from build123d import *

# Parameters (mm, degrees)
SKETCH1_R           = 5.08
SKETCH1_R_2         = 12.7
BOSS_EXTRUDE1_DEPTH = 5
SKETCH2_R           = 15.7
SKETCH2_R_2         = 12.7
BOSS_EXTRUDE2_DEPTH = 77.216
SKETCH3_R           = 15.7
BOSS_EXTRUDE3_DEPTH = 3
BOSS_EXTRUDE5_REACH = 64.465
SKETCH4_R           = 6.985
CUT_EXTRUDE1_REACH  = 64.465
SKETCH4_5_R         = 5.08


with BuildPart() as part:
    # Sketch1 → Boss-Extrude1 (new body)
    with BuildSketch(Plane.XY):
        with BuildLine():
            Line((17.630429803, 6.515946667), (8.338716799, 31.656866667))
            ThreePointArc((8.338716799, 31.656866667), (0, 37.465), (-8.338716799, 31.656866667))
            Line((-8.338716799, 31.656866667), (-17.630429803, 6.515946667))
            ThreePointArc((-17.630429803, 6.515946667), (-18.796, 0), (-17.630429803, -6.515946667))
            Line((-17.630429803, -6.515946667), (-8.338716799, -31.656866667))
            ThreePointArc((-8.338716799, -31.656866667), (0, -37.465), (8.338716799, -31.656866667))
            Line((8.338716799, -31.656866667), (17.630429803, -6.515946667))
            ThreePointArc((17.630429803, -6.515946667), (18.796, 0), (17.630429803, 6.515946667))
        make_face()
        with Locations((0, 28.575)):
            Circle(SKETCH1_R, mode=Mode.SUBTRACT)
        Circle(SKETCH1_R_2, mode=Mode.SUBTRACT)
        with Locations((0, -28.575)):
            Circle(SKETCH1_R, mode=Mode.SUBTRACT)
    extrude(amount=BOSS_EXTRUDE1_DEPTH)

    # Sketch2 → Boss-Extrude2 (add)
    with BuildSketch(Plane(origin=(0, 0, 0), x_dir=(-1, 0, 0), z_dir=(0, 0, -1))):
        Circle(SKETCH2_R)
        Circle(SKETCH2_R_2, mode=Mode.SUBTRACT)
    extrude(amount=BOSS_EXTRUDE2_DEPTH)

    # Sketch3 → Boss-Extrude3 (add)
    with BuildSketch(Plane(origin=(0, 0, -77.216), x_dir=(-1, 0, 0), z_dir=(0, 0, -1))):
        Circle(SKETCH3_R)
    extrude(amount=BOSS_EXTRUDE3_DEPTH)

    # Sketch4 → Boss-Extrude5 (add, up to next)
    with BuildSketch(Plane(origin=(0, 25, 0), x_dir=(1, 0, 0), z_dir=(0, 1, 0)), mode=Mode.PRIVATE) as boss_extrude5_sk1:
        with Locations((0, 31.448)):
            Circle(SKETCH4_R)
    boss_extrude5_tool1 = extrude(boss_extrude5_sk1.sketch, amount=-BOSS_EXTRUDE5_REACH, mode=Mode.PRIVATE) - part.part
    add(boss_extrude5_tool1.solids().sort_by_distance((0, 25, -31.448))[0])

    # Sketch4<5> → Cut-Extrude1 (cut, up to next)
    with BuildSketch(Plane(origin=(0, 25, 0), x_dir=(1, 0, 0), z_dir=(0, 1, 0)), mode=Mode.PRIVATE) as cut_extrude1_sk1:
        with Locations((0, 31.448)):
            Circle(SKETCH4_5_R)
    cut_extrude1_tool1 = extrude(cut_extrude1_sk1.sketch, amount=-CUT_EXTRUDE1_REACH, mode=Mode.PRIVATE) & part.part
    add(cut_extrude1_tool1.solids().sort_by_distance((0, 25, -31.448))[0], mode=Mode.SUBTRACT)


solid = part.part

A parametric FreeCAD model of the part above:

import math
import FreeCAD as App
import Part
import Sketcher
Q = App.Units.Quantity

doc = App.newDocument("Part")
params = doc.addObject("Spreadsheet::Sheet", "Params")
for row, (alias, value) in enumerate([
    ("sketch1_diameter", "1 in"),
    ("sketch1_diameter2", "0.4 in"),
    ("sketch1_radius", "0.35 in"),
    ("sketch1_radius2", "0.74 in"),
    ("pad1_length", "5 mm"),
    ("sketch2_diameter", "1 in"),
    ("pad2_length", "3.04 in"),
    ("pad3_length", "3 mm"),
    ("sketch4_diameter", "0.55 in"),
    ("sketch5_diameter", "0.4 in"),
], start=1):
    params.set(f"A{row}", alias)
    params.set(f"B{row}", "=" + value)
    params.setAlias(f"B{row}", alias)

body = doc.addObject("PartDesign::Body", "Body")

# Sketch on XY plane
sketch1 = body.newObject("Sketcher::SketchObject", "Sketch")
sketch1.AttachmentSupport = (doc.getObject("XY_Plane"), [""])
sketch1.MapMode = "FlatFace"
sketch1.addGeometry(Part.LineSegment(App.Vector(18, 7, 0), App.Vector(8, 32, 0)), False)
sketch1.addGeometry(Part.ArcOfCircle(Part.Circle(App.Vector(0, 29, 0), App.Vector(0, 0, 1), 9), math.radians(20), math.radians(160)), False)
sketch1.addGeometry(Part.LineSegment(App.Vector(-8, 32, 0), App.Vector(-18, 7, 0)), False)
sketch1.addGeometry(Part.ArcOfCircle(Part.Circle(App.Vector(0, 0, 0), App.Vector(0, 0, 1), 19), math.radians(160), math.radians(200)), False)
sketch1.addGeometry(Part.LineSegment(App.Vector(-18, -7, 0), App.Vector(-8, -32, 0)), False)
sketch1.addGeometry(Part.ArcOfCircle(Part.Circle(App.Vector(0, -29, 0), App.Vector(0, 0, 1), 9), math.radians(-160), math.radians(-20)), False)
sketch1.addGeometry(Part.LineSegment(App.Vector(8, -32, 0), App.Vector(18, -7, 0)), False)
sketch1.addGeometry(Part.ArcOfCircle(Part.Circle(App.Vector(0, 0, 0), App.Vector(0, 0, 1), 19), math.radians(-20), math.radians(20)), False)
sketch1.addGeometry(Part.Circle(App.Vector(0, -29, 0), App.Vector(0, 0, 1), 5), False)
sketch1.addGeometry(Part.Circle(App.Vector(0, 0, 0), App.Vector(0, 0, 1), 13), False)
sketch1.addGeometry(Part.Circle(App.Vector(0, 29, 0), App.Vector(0, 0, 1), 5), False)
sketch1.addConstraint(Sketcher.Constraint("Tangent", 0, 2, 1, 1))
sketch1.addConstraint(Sketcher.Constraint("Tangent", 1, 2, 2, 1))
sketch1.addConstraint(Sketcher.Constraint("Tangent", 2, 2, 3, 1))
sketch1.addConstraint(Sketcher.Constraint("Tangent", 3, 2, 4, 1))
sketch1.addConstraint(Sketcher.Constraint("Tangent", 4, 2, 5, 1))
sketch1.addConstraint(Sketcher.Constraint("Tangent", 5, 2, 6, 1))
sketch1.addConstraint(Sketcher.Constraint("Tangent", 6, 2, 7, 1))
sketch1.addConstraint(Sketcher.Constraint("Tangent", 7, 2, 0, 1))
sketch1.addConstraint(Sketcher.Constraint("Coincident", 3, 3, -1, 1))
sketch1.addConstraint(Sketcher.Constraint("Coincident", 7, 3, -1, 1))
sketch1.addConstraint(Sketcher.Constraint("Coincident", 9, 3, -1, 1))
sketch1.addConstraint(Sketcher.Constraint("Coincident", 8, 3, 5, 3))
sketch1.addConstraint(Sketcher.Constraint("Coincident", 10, 3, 1, 3))
sketch1.addConstraint(Sketcher.Constraint("Equal", 1, 5))
sketch1.addConstraint(Sketcher.Constraint("Equal", 3, 7))
sketch1.addConstraint(Sketcher.Constraint("Equal", 8, 10))
sketch1.addConstraint(Sketcher.Constraint("Symmetric", 1, 3, 5, 3, -1, 1))
sketch1.addConstraint(Sketcher.Constraint("PointOnObject", 1, 3, -2))
sketch1.addConstraint(Sketcher.Constraint("Diameter", 9, Q("1 in")))
sketch1.addConstraint(Sketcher.Constraint("Diameter", 8, Q("0.4 in")))
sketch1.addConstraint(Sketcher.Constraint("Radius", 1, Q("0.35 in")))
sketch1.addConstraint(Sketcher.Constraint("Radius", 3, Q("0.74 in")))
sketch1.addConstraint(Sketcher.Constraint("DistanceY", 5, 3, 1, 3, Q("2.25 in")))
sketch1.setExpression("Constraints[18]", "Params.sketch1_diameter")
sketch1.setExpression("Constraints[19]", "Params.sketch1_diameter2")
sketch1.setExpression("Constraints[20]", "Params.sketch1_radius")
sketch1.setExpression("Constraints[21]", "Params.sketch1_radius2")
pad1 = body.newObject("PartDesign::Pad", "Pad")
pad1.Profile = sketch1
pad1.setExpression("Length", "Params.pad1_length")

# Sketch on XY plane
sketch2 = body.newObject("Sketcher::SketchObject", "Sketch001")
sketch2.AttachmentSupport = (doc.getObject("XY_Plane"), [""])
sketch2.MapMode = "FlatFace"
sketch2.addGeometry(Part.Circle(App.Vector(0, 0, 0), App.Vector(0, 0, 1), 16), False)
sketch2.addGeometry(Part.Circle(App.Vector(0, 0, 0), App.Vector(0, 0, 1), 13), False)
sketch2.addConstraint(Sketcher.Constraint("Coincident", 0, 3, -1, 1))
sketch2.addConstraint(Sketcher.Constraint("Coincident", 1, 3, -1, 1))
sketch2.addConstraint(Sketcher.Constraint("Diameter", 1, Q("1 in")))
sketch2.addConstraint(Sketcher.Constraint("Diameter", 0, 31.4))
sketch2.setExpression("Constraints[2]", "Params.sketch2_diameter")
pad2 = body.newObject("PartDesign::Pad", "Pad001")
pad2.Profile = sketch2
pad2.setExpression("Length", "Params.pad2_length")
pad2.Reversed = True

# Sketch on XY plane
sketch3 = body.newObject("Sketcher::SketchObject", "Sketch002")
sketch3.AttachmentSupport = (doc.getObject("XY_Plane"), [""])
sketch3.MapMode = "FlatFace"
sketch3.AttachmentOffset = App.Placement(App.Vector(0, 0, -3.04 * 25.4), App.Rotation())
sketch3.addGeometry(Part.Circle(App.Vector(0, 0, 0), App.Vector(0, 0, 1), 16), False)
sketch3.addConstraint(Sketcher.Constraint("Coincident", 0, 3, -1, 1))
sketch3.addConstraint(Sketcher.Constraint("Diameter", 0, 31.4))
pad3 = body.newObject("PartDesign::Pad", "Pad002")
pad3.Profile = sketch3
pad3.setExpression("Length", "Params.pad3_length")
pad3.Reversed = True

# Sketch on XZ plane
sketch4 = body.newObject("Sketcher::SketchObject", "Sketch003")
sketch4.AttachmentSupport = (doc.getObject("XZ_Plane"), [""])
sketch4.MapMode = "FlatFace"
sketch4.AttachmentOffset = App.Placement(App.Vector(0, 0, -25), App.Rotation())
sketch4.addGeometry(Part.Circle(App.Vector(0, -31, 0), App.Vector(0, 0, 1), 7), False)
sketch4.addConstraint(Sketcher.Constraint("PointOnObject", 0, 3, -2))
sketch4.addConstraint(Sketcher.Constraint("Diameter", 0, Q("0.55 in")))
sketch4.addConstraint(Sketcher.Constraint("DistanceY", 0, 3, -1, 1, 31.448))
sketch4.setExpression("Constraints[1]", "Params.sketch4_diameter")
pad4 = body.newObject("PartDesign::Pad", "Pad003")
pad4.Profile = sketch4
pad4.Type = "UpToFirst"

# Sketch on XZ plane
sketch5 = body.newObject("Sketcher::SketchObject", "Sketch004")
sketch5.AttachmentSupport = (doc.getObject("XZ_Plane"), [""])
sketch5.MapMode = "FlatFace"
sketch5.AttachmentOffset = App.Placement(App.Vector(0, 0, -25), App.Rotation())
sketch5.addGeometry(Part.Circle(App.Vector(0, -31, 0), App.Vector(0, 0, 1), 5), False)
sketch5.addConstraint(Sketcher.Constraint("PointOnObject", 0, 3, -2))
sketch5.addConstraint(Sketcher.Constraint("Diameter", 0, Q("0.4 in")))
sketch5.addConstraint(Sketcher.Constraint("DistanceY", 0, 3, -1, 1, 31.448))
sketch5.setExpression("Constraints[1]", "Params.sketch5_diameter")
pocket1 = body.newObject("PartDesign::Pocket", "Pocket")
pocket1.Profile = sketch5
pocket1.Type = "UpToFirst"
pocket1.Reversed = True

doc.recompute()
